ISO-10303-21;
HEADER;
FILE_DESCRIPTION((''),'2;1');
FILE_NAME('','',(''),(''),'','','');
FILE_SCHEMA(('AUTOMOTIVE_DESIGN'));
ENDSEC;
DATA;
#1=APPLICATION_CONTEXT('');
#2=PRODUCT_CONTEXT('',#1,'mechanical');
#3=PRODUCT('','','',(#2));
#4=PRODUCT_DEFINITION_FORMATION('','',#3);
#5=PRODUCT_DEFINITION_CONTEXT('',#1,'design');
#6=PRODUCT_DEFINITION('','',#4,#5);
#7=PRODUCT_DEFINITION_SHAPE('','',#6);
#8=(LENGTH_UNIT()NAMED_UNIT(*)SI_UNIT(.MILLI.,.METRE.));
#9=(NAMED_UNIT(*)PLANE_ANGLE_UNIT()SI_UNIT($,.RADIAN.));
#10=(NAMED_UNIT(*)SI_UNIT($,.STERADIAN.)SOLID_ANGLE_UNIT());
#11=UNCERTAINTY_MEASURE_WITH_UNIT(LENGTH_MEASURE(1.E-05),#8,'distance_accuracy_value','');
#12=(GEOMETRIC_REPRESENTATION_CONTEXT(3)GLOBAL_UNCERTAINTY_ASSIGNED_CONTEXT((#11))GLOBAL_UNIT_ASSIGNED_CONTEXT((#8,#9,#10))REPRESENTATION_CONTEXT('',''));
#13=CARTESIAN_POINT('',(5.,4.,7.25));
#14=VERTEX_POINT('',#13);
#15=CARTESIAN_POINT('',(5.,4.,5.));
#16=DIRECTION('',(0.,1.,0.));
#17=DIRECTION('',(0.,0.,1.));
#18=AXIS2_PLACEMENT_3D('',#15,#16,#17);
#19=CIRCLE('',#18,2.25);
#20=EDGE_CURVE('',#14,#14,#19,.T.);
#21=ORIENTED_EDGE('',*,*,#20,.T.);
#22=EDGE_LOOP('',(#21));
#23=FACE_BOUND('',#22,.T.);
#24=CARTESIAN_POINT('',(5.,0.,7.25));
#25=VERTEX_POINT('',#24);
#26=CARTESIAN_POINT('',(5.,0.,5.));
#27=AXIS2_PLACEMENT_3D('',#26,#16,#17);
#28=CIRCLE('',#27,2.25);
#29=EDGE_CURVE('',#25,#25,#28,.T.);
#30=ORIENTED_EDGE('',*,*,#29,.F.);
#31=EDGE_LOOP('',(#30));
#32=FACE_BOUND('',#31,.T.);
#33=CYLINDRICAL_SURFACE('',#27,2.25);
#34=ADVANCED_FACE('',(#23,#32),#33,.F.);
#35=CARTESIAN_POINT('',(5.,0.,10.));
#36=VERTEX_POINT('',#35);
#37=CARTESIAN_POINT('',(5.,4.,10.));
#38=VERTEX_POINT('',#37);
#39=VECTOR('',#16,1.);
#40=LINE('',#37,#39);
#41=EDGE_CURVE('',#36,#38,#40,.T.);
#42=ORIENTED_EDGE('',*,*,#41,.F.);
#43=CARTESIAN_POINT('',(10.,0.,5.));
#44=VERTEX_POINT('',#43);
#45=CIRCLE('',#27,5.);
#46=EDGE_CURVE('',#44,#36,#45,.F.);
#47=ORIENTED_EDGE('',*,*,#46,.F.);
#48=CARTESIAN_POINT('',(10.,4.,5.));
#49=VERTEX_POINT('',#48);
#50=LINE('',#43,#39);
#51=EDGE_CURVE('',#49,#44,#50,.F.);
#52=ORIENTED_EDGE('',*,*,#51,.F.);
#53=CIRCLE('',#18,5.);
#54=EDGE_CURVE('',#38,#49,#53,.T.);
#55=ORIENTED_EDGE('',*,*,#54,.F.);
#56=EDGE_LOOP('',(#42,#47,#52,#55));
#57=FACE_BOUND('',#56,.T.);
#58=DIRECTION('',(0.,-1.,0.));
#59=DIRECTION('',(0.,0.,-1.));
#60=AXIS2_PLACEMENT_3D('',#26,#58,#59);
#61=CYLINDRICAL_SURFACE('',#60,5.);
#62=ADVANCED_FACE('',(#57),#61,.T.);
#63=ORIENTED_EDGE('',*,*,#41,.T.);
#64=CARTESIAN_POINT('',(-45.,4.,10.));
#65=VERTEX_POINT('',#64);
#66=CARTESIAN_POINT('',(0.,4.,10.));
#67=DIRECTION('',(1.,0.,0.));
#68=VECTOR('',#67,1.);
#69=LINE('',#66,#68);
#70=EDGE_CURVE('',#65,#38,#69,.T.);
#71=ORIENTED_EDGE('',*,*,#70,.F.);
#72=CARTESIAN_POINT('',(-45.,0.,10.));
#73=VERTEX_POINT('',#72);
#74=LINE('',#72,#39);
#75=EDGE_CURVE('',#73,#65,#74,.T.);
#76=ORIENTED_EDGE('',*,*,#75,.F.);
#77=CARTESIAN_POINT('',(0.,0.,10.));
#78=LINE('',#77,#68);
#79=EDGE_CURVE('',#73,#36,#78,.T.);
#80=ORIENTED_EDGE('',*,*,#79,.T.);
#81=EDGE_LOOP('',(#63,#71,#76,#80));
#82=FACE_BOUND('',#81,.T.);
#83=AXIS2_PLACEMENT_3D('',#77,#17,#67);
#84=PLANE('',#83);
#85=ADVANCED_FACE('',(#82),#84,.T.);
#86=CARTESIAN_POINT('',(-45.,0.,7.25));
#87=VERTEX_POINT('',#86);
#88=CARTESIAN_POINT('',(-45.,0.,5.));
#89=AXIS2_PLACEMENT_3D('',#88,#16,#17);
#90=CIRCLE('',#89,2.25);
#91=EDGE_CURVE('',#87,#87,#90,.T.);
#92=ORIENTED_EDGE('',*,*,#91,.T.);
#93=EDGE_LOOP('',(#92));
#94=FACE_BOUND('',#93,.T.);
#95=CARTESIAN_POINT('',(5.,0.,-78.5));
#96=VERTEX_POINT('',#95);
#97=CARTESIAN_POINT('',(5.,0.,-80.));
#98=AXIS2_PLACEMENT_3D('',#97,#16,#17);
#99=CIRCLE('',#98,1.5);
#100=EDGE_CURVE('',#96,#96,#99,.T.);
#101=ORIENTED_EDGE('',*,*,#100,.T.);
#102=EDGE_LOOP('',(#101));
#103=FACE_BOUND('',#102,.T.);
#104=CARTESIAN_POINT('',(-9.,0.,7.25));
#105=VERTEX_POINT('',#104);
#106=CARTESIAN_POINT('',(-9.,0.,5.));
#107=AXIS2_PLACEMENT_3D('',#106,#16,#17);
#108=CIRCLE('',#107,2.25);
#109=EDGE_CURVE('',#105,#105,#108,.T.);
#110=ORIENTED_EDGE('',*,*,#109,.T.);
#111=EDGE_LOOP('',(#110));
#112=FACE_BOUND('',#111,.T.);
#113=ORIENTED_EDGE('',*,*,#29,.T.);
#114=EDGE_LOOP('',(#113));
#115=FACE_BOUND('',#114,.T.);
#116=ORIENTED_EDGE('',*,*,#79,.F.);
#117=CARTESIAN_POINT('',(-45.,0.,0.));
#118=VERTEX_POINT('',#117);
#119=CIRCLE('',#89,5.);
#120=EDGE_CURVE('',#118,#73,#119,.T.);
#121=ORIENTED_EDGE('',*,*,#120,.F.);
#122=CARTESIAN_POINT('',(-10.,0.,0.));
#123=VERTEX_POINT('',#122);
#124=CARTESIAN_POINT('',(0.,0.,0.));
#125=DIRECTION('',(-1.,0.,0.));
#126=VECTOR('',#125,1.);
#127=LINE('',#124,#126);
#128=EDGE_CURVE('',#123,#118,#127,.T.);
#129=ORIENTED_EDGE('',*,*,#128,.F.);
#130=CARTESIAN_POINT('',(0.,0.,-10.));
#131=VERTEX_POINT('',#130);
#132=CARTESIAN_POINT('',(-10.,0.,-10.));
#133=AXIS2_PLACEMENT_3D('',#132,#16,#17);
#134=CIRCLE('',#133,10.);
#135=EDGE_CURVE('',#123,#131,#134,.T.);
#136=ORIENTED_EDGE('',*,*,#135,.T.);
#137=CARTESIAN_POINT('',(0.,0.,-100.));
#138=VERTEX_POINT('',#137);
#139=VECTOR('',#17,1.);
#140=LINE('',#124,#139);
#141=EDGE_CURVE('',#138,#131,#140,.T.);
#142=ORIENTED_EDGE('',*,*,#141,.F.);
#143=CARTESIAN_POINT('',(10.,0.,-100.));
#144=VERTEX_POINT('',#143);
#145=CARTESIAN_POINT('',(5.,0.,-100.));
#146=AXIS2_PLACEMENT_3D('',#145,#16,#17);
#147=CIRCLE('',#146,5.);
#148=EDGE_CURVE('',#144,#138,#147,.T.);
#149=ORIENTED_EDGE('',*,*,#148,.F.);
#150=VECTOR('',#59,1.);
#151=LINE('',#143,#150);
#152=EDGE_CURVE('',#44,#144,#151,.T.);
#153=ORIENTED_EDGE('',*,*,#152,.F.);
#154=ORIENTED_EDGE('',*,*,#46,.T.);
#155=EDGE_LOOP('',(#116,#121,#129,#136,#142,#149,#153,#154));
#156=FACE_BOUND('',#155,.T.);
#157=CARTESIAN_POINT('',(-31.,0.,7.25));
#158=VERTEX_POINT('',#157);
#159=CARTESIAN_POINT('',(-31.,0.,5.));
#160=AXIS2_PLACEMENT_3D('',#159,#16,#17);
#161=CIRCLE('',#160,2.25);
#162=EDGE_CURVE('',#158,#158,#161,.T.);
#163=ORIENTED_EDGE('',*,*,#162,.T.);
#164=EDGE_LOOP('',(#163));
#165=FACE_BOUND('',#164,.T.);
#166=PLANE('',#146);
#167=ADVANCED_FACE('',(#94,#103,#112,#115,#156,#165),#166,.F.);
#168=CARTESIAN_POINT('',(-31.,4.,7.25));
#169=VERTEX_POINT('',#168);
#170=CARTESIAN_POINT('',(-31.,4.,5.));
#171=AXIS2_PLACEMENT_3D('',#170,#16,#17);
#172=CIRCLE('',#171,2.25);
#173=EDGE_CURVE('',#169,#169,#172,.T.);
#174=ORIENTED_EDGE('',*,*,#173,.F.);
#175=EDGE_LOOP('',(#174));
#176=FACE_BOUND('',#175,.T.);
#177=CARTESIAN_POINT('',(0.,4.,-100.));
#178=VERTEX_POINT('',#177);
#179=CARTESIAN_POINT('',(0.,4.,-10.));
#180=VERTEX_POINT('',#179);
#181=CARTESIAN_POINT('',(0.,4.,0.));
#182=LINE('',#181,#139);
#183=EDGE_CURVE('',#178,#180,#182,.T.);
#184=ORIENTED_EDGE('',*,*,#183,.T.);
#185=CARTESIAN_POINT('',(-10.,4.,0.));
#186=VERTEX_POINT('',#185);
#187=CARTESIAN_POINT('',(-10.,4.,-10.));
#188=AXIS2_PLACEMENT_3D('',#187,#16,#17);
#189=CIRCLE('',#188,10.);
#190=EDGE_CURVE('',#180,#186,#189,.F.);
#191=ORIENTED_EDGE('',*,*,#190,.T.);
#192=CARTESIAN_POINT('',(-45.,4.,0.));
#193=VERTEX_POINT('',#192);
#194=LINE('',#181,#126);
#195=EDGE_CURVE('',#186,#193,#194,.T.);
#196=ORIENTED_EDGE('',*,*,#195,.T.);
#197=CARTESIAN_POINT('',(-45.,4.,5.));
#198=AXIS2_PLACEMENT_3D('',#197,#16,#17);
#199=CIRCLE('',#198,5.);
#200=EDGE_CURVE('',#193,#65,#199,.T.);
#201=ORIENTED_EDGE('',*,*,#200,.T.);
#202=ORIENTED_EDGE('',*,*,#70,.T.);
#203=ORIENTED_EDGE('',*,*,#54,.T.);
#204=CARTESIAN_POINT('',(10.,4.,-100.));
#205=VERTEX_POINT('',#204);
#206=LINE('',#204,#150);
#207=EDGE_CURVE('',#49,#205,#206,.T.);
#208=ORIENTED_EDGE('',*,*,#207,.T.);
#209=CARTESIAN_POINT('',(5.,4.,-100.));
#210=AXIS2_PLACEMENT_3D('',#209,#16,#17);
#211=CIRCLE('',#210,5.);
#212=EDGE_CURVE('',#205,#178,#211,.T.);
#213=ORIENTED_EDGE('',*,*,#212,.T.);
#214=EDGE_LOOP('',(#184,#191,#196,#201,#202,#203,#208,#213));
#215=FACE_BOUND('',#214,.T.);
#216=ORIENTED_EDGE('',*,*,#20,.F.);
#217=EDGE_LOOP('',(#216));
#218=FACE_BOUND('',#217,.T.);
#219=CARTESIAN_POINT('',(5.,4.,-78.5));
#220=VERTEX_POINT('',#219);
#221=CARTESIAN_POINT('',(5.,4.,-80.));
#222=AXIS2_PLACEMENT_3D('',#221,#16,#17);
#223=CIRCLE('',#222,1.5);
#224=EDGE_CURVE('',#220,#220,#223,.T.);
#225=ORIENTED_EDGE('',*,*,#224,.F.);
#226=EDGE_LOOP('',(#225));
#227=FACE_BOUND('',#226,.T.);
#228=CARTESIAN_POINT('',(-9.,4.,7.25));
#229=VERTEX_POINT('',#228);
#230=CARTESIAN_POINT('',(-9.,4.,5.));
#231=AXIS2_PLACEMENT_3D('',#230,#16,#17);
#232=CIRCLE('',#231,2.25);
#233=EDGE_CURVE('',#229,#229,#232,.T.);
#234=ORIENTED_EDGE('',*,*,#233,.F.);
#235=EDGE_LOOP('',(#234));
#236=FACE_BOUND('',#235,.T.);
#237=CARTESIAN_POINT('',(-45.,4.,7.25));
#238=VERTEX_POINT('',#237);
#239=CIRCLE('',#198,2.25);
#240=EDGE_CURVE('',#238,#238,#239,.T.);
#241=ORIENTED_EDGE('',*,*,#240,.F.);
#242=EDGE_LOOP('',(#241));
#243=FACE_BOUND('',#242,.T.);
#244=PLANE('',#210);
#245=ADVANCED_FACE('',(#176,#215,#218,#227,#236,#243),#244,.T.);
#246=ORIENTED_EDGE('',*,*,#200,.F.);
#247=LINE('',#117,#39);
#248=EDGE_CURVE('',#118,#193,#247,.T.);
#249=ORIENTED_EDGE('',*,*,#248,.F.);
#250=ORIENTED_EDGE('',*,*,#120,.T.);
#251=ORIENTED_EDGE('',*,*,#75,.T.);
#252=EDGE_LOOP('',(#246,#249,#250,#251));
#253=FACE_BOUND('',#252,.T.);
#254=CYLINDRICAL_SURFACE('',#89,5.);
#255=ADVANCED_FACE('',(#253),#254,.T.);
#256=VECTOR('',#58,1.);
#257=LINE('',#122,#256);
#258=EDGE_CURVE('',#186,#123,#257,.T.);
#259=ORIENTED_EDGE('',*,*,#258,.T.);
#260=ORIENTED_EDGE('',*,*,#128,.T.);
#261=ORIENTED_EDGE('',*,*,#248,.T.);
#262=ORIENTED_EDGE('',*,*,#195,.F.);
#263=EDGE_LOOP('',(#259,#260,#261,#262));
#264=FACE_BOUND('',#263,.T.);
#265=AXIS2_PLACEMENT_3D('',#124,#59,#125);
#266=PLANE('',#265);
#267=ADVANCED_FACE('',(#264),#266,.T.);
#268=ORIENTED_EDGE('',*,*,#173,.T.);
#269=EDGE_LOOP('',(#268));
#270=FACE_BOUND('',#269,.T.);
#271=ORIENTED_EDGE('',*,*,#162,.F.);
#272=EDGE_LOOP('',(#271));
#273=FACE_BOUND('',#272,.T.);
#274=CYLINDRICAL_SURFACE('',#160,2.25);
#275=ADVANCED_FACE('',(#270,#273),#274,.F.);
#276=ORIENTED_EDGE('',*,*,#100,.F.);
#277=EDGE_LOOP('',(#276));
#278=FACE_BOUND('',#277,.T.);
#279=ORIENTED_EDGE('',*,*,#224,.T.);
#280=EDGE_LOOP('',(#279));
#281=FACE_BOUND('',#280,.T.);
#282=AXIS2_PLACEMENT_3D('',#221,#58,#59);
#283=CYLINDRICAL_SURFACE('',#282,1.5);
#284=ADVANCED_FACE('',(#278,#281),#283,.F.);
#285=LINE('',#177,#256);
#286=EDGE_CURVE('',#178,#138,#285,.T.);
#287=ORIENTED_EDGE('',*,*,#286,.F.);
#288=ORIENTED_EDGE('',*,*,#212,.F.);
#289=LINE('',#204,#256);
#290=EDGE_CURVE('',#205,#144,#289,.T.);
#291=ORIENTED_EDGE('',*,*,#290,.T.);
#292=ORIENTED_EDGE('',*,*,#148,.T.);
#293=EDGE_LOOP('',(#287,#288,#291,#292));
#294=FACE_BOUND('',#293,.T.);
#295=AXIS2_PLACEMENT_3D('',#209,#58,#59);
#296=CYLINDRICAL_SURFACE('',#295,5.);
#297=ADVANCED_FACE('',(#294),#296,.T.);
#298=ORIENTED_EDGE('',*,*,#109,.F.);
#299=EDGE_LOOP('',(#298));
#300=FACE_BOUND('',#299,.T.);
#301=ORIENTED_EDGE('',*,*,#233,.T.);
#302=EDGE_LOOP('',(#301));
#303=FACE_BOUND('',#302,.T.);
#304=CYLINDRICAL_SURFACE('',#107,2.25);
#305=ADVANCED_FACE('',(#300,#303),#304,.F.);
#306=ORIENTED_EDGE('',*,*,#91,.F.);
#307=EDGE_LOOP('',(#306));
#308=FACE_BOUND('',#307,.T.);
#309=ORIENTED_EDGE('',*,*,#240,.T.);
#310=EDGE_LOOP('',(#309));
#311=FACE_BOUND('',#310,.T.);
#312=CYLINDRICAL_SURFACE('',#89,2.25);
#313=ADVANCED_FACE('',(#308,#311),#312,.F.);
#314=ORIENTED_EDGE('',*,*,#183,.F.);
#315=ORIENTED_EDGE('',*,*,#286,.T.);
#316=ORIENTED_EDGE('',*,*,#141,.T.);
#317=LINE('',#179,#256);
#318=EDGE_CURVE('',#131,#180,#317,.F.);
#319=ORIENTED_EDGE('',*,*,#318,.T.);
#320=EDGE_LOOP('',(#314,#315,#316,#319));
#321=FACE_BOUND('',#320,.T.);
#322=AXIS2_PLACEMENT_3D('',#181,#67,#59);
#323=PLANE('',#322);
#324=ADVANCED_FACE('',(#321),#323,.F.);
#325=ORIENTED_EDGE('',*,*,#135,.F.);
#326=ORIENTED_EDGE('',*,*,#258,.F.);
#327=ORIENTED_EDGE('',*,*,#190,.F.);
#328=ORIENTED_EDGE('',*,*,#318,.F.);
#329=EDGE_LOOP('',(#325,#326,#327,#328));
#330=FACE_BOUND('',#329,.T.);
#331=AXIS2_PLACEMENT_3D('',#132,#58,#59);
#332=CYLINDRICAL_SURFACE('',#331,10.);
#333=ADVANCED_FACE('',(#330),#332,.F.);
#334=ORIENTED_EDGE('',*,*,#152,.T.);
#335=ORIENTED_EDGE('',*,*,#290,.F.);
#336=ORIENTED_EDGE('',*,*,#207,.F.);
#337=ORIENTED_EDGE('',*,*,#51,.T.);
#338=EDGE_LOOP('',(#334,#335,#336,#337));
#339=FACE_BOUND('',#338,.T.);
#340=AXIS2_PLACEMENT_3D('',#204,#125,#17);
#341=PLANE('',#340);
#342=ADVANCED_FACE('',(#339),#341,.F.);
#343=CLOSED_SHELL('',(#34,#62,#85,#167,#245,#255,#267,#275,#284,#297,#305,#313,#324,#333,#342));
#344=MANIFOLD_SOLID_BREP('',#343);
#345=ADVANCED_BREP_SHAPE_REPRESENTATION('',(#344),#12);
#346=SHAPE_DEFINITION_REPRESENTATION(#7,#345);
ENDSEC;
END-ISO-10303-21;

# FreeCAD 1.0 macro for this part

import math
import FreeCAD as App
import Part
import Sketcher

V = App.Vector
Q = App.Units.Quantity


def edges_at(feature, points):
    """Names of the edges that pass closest to the given points."""
    edges = feature.Shape.Edges
    near = lambda p: min(range(len(edges)), key=lambda i: edges[i].distToShape(Part.Vertex(*p))[0])
    return sorted({f"Edge{near(p) + 1}" for p in points})

doc = App.newDocument("Part")
body = doc.addObject("PartDesign::Body", "Body")

# Sketch on XZ plane
sketch1 = doc.addObject("Sketcher::SketchObject", "Sketch")
body.addObject(sketch1)
sketch1.AttachmentSupport = (doc.XZ_Plane, [""])
sketch1.MapMode = "FlatFace"
sketch1.addGeometry(Part.LineSegment(V(0, -100, 0), V(0, 0, 0)), False)
sketch1.addGeometry(Part.LineSegment(V(0, 0, 0), V(10, 0, 0)), False)
sketch1.addGeometry(Part.LineSegment(V(10, 0, 0), V(10, -100, 0)), False)
sketch1.addGeometry(Part.ArcOfCircle(Part.Circle(V(5, -100, 0), V(0, 0, 1), 5), math.radians(180), math.radians(360)), False)
sketch1.addGeometry(Part.Circle(V(5, -80, 0), V(0, 0, 1), 1.5), False)
sketch1.addConstraint(Sketcher.Constraint("Coincident", 0, 2, 1, 1))
sketch1.addConstraint(Sketcher.Constraint("Coincident", 1, 2, 2, 1))
sketch1.addConstraint(Sketcher.Constraint("Tangent", 2, 2, 3, 2))
sketch1.addConstraint(Sketcher.Constraint("Tangent", 3, 1, 0, 1))
sketch1.addConstraint(Sketcher.Constraint("Vertical", 0))
sketch1.addConstraint(Sketcher.Constraint("Horizontal", 1))
sketch1.addConstraint(Sketcher.Constraint("Vertical", 2))
sketch1.addConstraint(Sketcher.Constraint("Coincident", 0, 2, -1, 1))
sketch1.addConstraint(Sketcher.Constraint("Vertical", 3, 3, 4, 3))
sketch1.addConstraint(Sketcher.Constraint("Diameter", 4, Q("3 mm")))
sketch1.addConstraint(Sketcher.Constraint("Radius", 3, Q("5 mm")))
sketch1.addConstraint(Sketcher.Constraint("DistanceY", 0, 1, 0, 2, Q("100 mm")))
sketch1.addConstraint(Sketcher.Constraint("DistanceY", 4, 3, -1, 1, Q("80 mm")))
pad1 = doc.addObject("PartDesign::Pad", "Pad")
body.addObject(pad1)
pad1.Profile = sketch1
pad1.Length = 4
pad1.Reversed = True

# Sketch on XZ plane
sketch2 = doc.addObject("Sketcher::SketchObject", "Sketch001")
body.addObject(sketch2)
sketch2.AttachmentSupport = (doc.XZ_Plane, [""])
sketch2.MapMode = "FlatFace"
sketch2.AttachmentOffset = App.Placement(V(0, 0, -4), App.Rotation())
sketch2.addGeometry(Part.LineSegment(V(10, 0, 0), V(-45, 0, 0)), False)
sketch2.addGeometry(Part.ArcOfCircle(Part.Circle(V(-45, 5, 0), V(0, 0, 1), 5), math.radians(90), math.radians(270)), False)
sketch2.addGeometry(Part.LineSegment(V(-45, 10, 0), V(10, 10, 0)), False)
sketch2.addGeometry(Part.LineSegment(V(10, 10, 0), V(10, 0, 0)), False)
sketch2.addGeometry(Part.Circle(V(-45, 5, 0), V(0, 0, 1), 2.2), False)
sketch2.addGeometry(Part.Circle(V(-31, 5, 0), V(0, 0, 1), 2.2), False)
sketch2.addGeometry(Part.Circle(V(-9, 5, 0), V(0, 0, 1), 2.2), False)
sketch2.addGeometry(Part.Circle(V(5, 5, 0), V(0, 0, 1), 2.2), False)
sketch2.addConstraint(Sketcher.Constraint("Tangent", 0, 2, 1, 2))
sketch2.addConstraint(Sketcher.Constraint("Tangent", 1, 1, 2, 1))
sketch2.addConstraint(Sketcher.Constraint("Coincident", 2, 2, 3, 1))
sketch2.addConstraint(Sketcher.Constraint("Coincident", 3, 2, 0, 1))
sketch2.addConstraint(Sketcher.Constraint("Horizontal", 0))
sketch2.addConstraint(Sketcher.Constraint("Horizontal", 2))
sketch2.addConstraint(Sketcher.Constraint("Vertical", 3))
sketch2.addConstraint(Sketcher.Constraint("Coincident", 4, 3, 1, 3))
sketch2.addConstraint(Sketcher.Constraint("Equal", 4, 5))
sketch2.addConstraint(Sketcher.Constraint("Equal", 5, 6))
sketch2.addConstraint(Sketcher.Constraint("Equal", 6, 7))
sketch2.addConstraint(Sketcher.Constraint("PointOnObject", 0, 2, -1))
sketch2.addConstraint(Sketcher.Constraint("Horizontal", 4, 3, 5, 3))
sketch2.addConstraint(Sketcher.Constraint("Horizontal", 5, 3, 6, 3))
sketch2.addConstraint(Sketcher.Constraint("Horizontal", 6, 3, 7, 3))
sketch2.addConstraint(Sketcher.Constraint("Radius", 1, Q("5 mm")))
sketch2.addConstraint(Sketcher.Constraint("Diameter", 4, Q("4.5 mm")))
sketch2.addConstraint(Sketcher.Constraint("DistanceX", 0, 2, 0, 1, Q("55 mm")))
sketch2.addConstraint(Sketcher.Constraint("DistanceX", 1, 3, -1, 1, Q("45 mm")))
sketch2.addConstraint(Sketcher.Constraint("DistanceX", 5, 3, -1, 1, Q("31 mm")))
sketch2.addConstraint(Sketcher.Constraint("DistanceX", 6, 3, -1, 1, Q("9 mm")))
sketch2.addConstraint(Sketcher.Constraint("DistanceX", -1, 1, 7, 3, Q("5 mm")))
pad2 = doc.addObject("PartDesign::Pad", "Pad001")
body.addObject(pad2)
pad2.Profile = sketch2
pad2.Length = 4
doc.recompute()

fillet = doc.addObject("PartDesign::Fillet", "Fillet")
body.addObject(fillet)
fillet.Base = (pad2, edges_at(pad2, [(0, 2, 0)]))
fillet.Radius = 10
doc.recompute()

fillet2 = doc.addObject("PartDesign::Fillet", "Fillet001")
body.addObject(fillet2)
fillet2.Base = (fillet, edges_at(fillet, [(10, 2, 10)]))
fillet2.Radius = 5

doc.recompute()
